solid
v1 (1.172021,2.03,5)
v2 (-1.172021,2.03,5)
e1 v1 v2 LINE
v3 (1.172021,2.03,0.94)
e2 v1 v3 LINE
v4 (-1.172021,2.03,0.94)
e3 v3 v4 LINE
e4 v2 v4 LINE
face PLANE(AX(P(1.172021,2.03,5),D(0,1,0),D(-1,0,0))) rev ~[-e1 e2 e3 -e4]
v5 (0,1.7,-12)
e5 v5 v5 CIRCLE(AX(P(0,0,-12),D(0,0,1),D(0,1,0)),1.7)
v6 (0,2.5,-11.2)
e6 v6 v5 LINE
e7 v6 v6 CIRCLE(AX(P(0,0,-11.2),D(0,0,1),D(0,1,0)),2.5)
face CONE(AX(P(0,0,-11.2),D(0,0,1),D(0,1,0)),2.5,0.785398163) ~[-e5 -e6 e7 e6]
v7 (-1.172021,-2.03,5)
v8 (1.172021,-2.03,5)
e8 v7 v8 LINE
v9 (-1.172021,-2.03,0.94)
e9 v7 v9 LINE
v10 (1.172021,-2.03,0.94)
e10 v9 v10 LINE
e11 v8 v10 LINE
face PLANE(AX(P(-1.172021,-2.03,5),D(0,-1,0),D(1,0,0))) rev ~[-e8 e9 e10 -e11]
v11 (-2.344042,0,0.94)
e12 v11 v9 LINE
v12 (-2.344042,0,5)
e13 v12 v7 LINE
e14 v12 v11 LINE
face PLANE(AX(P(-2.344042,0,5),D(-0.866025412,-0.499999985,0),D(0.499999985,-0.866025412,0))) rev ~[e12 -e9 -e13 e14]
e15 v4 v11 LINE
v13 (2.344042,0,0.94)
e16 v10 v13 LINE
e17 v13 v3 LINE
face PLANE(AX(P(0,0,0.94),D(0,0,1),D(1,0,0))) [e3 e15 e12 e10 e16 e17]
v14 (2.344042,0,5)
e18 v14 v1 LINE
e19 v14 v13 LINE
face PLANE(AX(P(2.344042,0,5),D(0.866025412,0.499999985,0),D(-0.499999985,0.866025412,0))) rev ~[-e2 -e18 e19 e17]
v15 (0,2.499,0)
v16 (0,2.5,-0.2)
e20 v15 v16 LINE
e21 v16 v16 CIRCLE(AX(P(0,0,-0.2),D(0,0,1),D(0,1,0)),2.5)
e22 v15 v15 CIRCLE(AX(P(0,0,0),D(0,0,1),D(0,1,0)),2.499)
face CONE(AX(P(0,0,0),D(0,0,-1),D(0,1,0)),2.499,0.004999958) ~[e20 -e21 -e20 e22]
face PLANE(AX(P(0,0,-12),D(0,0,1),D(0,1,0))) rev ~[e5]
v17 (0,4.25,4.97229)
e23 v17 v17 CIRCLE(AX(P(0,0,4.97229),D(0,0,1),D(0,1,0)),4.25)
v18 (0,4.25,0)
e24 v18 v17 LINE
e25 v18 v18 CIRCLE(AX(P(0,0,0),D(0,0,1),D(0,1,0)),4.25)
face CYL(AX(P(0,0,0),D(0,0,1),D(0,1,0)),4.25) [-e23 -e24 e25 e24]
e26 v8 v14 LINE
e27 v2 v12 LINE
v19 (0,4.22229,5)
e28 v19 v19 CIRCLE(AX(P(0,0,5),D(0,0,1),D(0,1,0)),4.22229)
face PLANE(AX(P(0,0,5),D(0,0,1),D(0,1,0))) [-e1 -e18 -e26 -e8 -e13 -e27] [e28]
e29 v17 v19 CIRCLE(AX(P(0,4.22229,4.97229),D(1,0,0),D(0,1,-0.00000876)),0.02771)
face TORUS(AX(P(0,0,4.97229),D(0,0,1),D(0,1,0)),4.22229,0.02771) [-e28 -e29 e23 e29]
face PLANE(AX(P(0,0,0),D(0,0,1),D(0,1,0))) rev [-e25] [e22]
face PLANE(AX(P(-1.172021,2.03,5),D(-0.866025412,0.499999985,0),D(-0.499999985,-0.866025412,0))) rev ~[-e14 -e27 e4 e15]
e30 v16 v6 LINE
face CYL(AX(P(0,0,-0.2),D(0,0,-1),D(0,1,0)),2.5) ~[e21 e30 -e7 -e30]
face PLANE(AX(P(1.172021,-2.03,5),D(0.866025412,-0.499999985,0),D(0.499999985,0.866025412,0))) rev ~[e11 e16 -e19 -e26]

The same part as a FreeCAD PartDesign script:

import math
import FreeCAD as App
import Part
import Sketcher
Q = App.Units.Quantity


def add_polygon(sketch, points):
    """Adds a closed chain of lines whose ends are joined by coincident constraints."""
    first, n = sketch.GeometryCount, len(points)
    for a, b in zip(points, points[1:] + points[:1]):
        sketch.addGeometry(Part.LineSegment(App.Vector(*a, 0), App.Vector(*b, 0)), False)
    for i in range(n):
        sketch.addConstraint(Sketcher.Constraint("Coincident", first + i, 2, first + (i + 1) % n, 1))

doc = App.newDocument("Part")
body = doc.addObject("PartDesign::Body", "Body")

# Sketch on YZ plane
sketch1 = doc.addObject("Sketcher::SketchObject", "Sketch")
body.addObject(sketch1)
sketch1.AttachmentSupport = (doc.YZ_Plane, [""])
sketch1.MapMode = "FlatFace"
sketch1.addGeometry(Part.LineSegment(App.Vector(2.499, 0, 0), App.Vector(4.25, 0, 0)), False)
sketch1.addGeometry(Part.LineSegment(App.Vector(4.25, 0, 0), App.Vector(4.25, 4.972, 0)), False)
sketch1.addGeometry(Part.ArcOfCircle(Part.Circle(App.Vector(4.222, 4.972, 0), App.Vector(0, 0, 1), 0.028), math.radians(0), math.radians(90)), False)
sketch1.addGeometry(Part.LineSegment(App.Vector(4.222, 5, 0), App.Vector(0, 5, 0)), False)
sketch1.addGeometry(Part.LineSegment(App.Vector(0, 5, 0), App.Vector(0, -12, 0)), False)
sketch1.addGeometry(Part.LineSegment(App.Vector(0, -12, 0), App.Vector(1.7, -12, 0)), False)
sketch1.addGeometry(Part.LineSegment(App.Vector(1.7, -12, 0), App.Vector(2.5, -11.2, 0)), False)
sketch1.addGeometry(Part.LineSegment(App.Vector(2.5, -11.2, 0), App.Vector(2.5, -0.2, 0)), False)
sketch1.addGeometry(Part.LineSegment(App.Vector(2.5, -0.2, 0), App.Vector(2.499, 0, 0)), False)
sketch1.addConstraint(Sketcher.Constraint("Coincident", 0, 2, 1, 1))
sketch1.addConstraint(Sketcher.Constraint("Coincident", 1, 2, 2, 1))
sketch1.addConstraint(Sketcher.Constraint("Coincident", 2, 2, 3, 1))
sketch1.addConstraint(Sketcher.Constraint("Coincident", 3, 2, 4, 1))
sketch1.addConstraint(Sketcher.Constraint("Coincident", 4, 2, 5, 1))
sketch1.addConstraint(Sketcher.Constraint("Coincident", 5, 2, 6, 1))
sketch1.addConstraint(Sketcher.Constraint("Coincident", 6, 2, 7, 1))
sketch1.addConstraint(Sketcher.Constraint("Coincident", 7, 2, 8, 1))
sketch1.addConstraint(Sketcher.Constraint("Coincident", 8, 2, 0, 1))
sketch1.addConstraint(Sketcher.Constraint("Horizontal", 0))
sketch1.addConstraint(Sketcher.Constraint("Vertical", 1))
sketch1.addConstraint(Sketcher.Constraint("Horizontal", 3))
sketch1.addConstraint(Sketcher.Constraint("Vertical", 4))
sketch1.addConstraint(Sketcher.Constraint("Horizontal", 5))
sketch1.addConstraint(Sketcher.Constraint("Vertical", 7))
sketch1.addConstraint(Sketcher.Constraint("PointOnObject", 0, 2, -1))
sketch1.addConstraint(Sketcher.Constraint("PointOnObject", 3, 2, -2))
sketch1.addConstraint(Sketcher.Constraint("Horizontal", 2, 3, 1, 2))
sketch1.addConstraint(Sketcher.Constraint("DistanceY", 4, 2, 4, 1, 17.0))
sketch1.addConstraint(Sketcher.Constraint("DistanceY", 7, 1, 7, 2, 11.0))
sketch1.addConstraint(Sketcher.Constraint("Angle", 6, Q("45 deg")))
sketch1.addConstraint(Sketcher.Constraint("DistanceX", 5, 1, 5, 2, 1.7))
sketch1.addConstraint(Sketcher.Constraint("DistanceY", -1, 1, 2, 2, 5.0))
sketch1.addConstraint(Sketcher.Constraint("DistanceX", -1, 1, 6, 2, 2.5))
sketch1.addConstraint(Sketcher.Constraint("DistanceX", 0, 1, 0, 2, 1.751))
sketch1.addConstraint(Sketcher.Constraint("DistanceX", -1, 1, 0, 2, 4.25))
sketch1.addConstraint(Sketcher.Constraint("Radius", 2, 0.02771))
sketch1.addConstraint(Sketcher.Constraint("DistanceX", 3, 2, 3, 1, 4.22229))
revolution = doc.addObject("PartDesign::Revolution", "Revolution")
body.addObject(revolution)
revolution.Profile = sketch1
revolution.ReferenceAxis = (sketch1, ["V_Axis"])
revolution.Angle = 360

# Sketch on XY plane
sketch2 = doc.addObject("Sketcher::SketchObject", "Sketch001")
body.addObject(sketch2)
sketch2.AttachmentSupport = (doc.XY_Plane, [""])
sketch2.MapMode = "FlatFace"
sketch2.AttachmentOffset = App.Placement(App.Vector(0, 0, 5), App.Rotation())
add_polygon(sketch2, [(2.3, 0), (1.2, 2), (-1.2, 2), (-2.3, 0), (-1.2, -2), (1.2, -2)])  # lines 0-5
sketch2.addConstraint(Sketcher.Constraint("Horizontal", 1))
sketch2.addConstraint(Sketcher.Constraint("Horizontal", 4))
sketch2.addConstraint(Sketcher.Constraint("Symmetric", 0, 2, 3, 2, -1, 1))
sketch2.addConstraint(Sketcher.Constraint("Symmetric", 2, 2, 5, 2, -1, 1))
sketch2.addConstraint(Sketcher.Constraint("PointOnObject", 2, 2, -1))
sketch2.addConstraint(Sketcher.Constraint("Parallel", 2, 5))
sketch2.addConstraint(Sketcher.Constraint("Vertical", 1, 2, 3, 2))
sketch2.addConstraint(Sketcher.Constraint("Angle", 0, Q("119.999999 deg")))
sketch2.addConstraint(Sketcher.Constraint("DistanceY", -1, 1, 0, 2, 2.03))
sketch2.addConstraint(Sketcher.Constraint("DistanceX", 1, 2, 1, 1, 2.344042))
pocket1 = doc.addObject("PartDesign::Pocket", "Pocket")
body.addObject(pocket1)
pocket1.Profile = sketch2
pocket1.Length = 4.06

doc.recompute()
